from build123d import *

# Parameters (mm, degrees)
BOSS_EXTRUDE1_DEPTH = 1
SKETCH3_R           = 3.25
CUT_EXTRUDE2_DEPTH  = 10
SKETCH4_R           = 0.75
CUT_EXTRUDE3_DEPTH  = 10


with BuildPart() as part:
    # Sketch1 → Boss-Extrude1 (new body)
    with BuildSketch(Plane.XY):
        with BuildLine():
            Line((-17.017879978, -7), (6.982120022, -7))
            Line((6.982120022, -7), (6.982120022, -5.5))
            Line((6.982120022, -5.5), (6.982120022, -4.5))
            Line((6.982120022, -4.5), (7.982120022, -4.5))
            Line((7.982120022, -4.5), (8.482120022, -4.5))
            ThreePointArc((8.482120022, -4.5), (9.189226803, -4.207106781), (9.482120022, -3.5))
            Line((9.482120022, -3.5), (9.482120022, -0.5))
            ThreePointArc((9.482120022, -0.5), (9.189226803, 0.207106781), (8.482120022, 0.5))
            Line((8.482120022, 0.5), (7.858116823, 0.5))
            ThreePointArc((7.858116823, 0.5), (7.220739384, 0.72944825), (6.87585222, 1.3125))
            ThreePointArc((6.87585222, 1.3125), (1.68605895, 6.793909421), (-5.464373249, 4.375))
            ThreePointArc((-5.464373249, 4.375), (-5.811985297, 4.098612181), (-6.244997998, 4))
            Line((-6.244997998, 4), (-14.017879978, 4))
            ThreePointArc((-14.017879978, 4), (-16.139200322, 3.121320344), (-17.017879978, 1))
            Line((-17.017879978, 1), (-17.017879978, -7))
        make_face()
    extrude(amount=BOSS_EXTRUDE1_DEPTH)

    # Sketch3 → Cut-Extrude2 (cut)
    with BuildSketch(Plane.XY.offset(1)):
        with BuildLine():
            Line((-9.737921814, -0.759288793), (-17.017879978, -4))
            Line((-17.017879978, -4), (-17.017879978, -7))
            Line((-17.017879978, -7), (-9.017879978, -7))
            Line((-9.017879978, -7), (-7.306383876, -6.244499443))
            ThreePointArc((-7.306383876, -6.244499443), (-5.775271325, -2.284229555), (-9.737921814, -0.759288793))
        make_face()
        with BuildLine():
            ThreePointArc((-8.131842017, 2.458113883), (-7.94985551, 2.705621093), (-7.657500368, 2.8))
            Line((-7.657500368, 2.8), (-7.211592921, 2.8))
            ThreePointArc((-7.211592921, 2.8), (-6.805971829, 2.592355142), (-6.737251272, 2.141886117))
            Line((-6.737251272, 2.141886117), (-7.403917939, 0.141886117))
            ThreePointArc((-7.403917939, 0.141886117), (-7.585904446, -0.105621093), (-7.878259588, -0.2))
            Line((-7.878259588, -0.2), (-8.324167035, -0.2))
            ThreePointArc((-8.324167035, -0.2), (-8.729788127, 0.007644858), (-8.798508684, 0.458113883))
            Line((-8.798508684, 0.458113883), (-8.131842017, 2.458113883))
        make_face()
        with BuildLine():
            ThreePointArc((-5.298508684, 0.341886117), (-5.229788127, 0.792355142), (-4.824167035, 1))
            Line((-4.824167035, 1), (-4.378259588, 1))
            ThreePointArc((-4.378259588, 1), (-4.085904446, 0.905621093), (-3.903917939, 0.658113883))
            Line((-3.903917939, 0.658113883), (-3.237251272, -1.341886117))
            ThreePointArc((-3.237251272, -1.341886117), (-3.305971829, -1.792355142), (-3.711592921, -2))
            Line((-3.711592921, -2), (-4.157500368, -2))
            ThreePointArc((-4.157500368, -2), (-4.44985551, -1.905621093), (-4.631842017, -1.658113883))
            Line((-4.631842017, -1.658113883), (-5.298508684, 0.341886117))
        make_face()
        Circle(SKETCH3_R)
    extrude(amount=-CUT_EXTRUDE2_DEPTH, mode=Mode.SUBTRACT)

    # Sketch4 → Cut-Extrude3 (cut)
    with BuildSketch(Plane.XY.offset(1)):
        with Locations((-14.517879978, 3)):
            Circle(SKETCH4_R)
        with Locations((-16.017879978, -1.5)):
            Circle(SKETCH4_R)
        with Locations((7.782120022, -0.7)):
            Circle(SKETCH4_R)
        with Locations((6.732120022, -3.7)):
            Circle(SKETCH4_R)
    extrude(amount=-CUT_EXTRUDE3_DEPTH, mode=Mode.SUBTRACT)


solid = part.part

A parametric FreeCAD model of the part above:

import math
import FreeCAD as App
import Part
import Sketcher

V = App.Vector
Q = App.Units.Quantity

doc = App.newDocument("Part")
params = doc.addObject("Spreadsheet::Sheet", "Params")
for row, (alias, value) in enumerate([
    ("sketch1_radius", "1 mm"),
    ("sketch1_radius2", "7 mm"),
    ("sketch1_radius3", "3 mm"),
    ("sketch1_width", "24 mm"),
    ("sketch1_height", "3 mm"),
    ("pad1_length", "1 mm"),
    ("sketch2_radius", "3 mm"),
    ("sketch2_diameter", "6.5 mm"),
    ("sketch2_radius2", "0.5 mm"),
    ("sketch2_width", "8 mm"),
    ("sketch2_height", "3 mm"),
    ("pocket1_length", "10 mm"),
    ("sketch3_diameter", "1.5 mm"),
    ("pocket2_length", "10 mm"),
], start=1):
    params.set(f"A{row}", alias)
    params.set(f"B{row}", "=" + value)
    params.setAlias(f"B{row}", alias)

body = doc.addObject("PartDesign::Body", "Body")

sketch1 = body.newObject("Sketcher::SketchObject", "Sketch")
sketch1.AttachmentSupport = (doc.getObject("XY_Plane"), [""])
sketch1.MapMode = "FlatFace"
sketch1.addGeometry([
    Part.LineSegment(V(-17, -7, 0), V(7, -7, 0)),
    Part.LineSegment(V(7, -7, 0), V(7, -4.5, 0)),
    Part.LineSegment(V(7, -4.5, 0), V(8.5, -4.5, 0)),
    Part.ArcOfCircle(Part.Circle(V(8.5, -3.5, 0), V(0, 0, 1), 1), math.radians(-90), math.radians(0)),
    Part.LineSegment(V(9.5, -3.5, 0), V(9.5, -0.5, 0)),
    Part.ArcOfCircle(Part.Circle(V(8.5, -0.5, 0), V(0, 0, 1), 1), math.radians(0), math.radians(90)),
    Part.LineSegment(V(8.5, 0.5, 0), V(7.9, 0.5, 0)),
    Part.ArcOfCircle(Part.Circle(V(7.9, 1.5, 0), V(0, 0, 1), 1), math.radians(-169), math.radians(-90)),
    Part.ArcOfCircle(Part.Circle(V(0, 0, 0), V(0, 0, 1), 7), math.radians(11), math.radians(141)),
    Part.ArcOfCircle(Part.Circle(V(-6.2, 5, 0), V(0, 0, 1), 1), math.radians(-90), math.radians(-39)),
    Part.LineSegment(V(-6.2, 4, 0), V(-14, 4, 0)),
    Part.ArcOfCircle(Part.Circle(V(-14, 1, 0), V(0, 0, 1), 3), math.radians(90), math.radians(180)),
    Part.LineSegment(V(-17, 1, 0), V(-17, -7, 0)),
], False)
sketch1.addConstraint([
    Sketcher.Constraint("Coincident", 0, 2, 1, 1),
    Sketcher.Constraint("Coincident", 1, 2, 2, 1),
    Sketcher.Constraint("Tangent", 2, 2, 3, 1),
    Sketcher.Constraint("Tangent", 3, 2, 4, 1),
    Sketcher.Constraint("Tangent", 4, 2, 5, 1),
    Sketcher.Constraint("Tangent", 5, 2, 6, 1),
    Sketcher.Constraint("Tangent", 6, 2, 7, 2),
    Sketcher.Constraint("Tangent", 7, 1, 8, 1),
    Sketcher.Constraint("Tangent", 8, 2, 9, 2),
    Sketcher.Constraint("Tangent", 9, 1, 10, 1),
    Sketcher.Constraint("Tangent", 10, 2, 11, 1),
    Sketcher.Constraint("Tangent", 11, 2, 12, 1),
    Sketcher.Constraint("Coincident", 12, 2, 0, 1),
    Sketcher.Constraint("Horizontal", 0),
    Sketcher.Constraint("Vertical", 1),
    Sketcher.Constraint("Horizontal", 2),
    Sketcher.Constraint("Vertical", 4),
    Sketcher.Constraint("Horizontal", 6),
    Sketcher.Constraint("Horizontal", 10),
    Sketcher.Constraint("Vertical", 12),
    Sketcher.Constraint("Coincident", 8, 3, -1, 1),
    Sketcher.Constraint("Equal", 3, 5),
    Sketcher.Constraint("Equal", 5, 7),
    Sketcher.Constraint("Equal", 7, 9),
    Sketcher.Constraint("Radius", 3, Q("1 mm")),
    Sketcher.Constraint("Radius", 8, Q("7 mm")),
    Sketcher.Constraint("Radius", 11, Q("3 mm")),
    Sketcher.Constraint("DistanceX", 0, 1, 0, 2, Q("24 mm")),
    Sketcher.Constraint("DistanceY", 4, 1, 4, 2, Q("3 mm")),
    Sketcher.Constraint("DistanceY", 12, 2, 12, 1, Q("8 mm")),
    Sketcher.Constraint("DistanceX", 2, 1, 2, 2, Q("1.5 mm")),
    Sketcher.Constraint("DistanceY", 1, 1, 1, 2, Q("2.5 mm")),
    Sketcher.Constraint("DistanceY", -1, 1, 9, 3, Q("5 mm")),
    Sketcher.Constraint("DistanceX", 10, 2, 10, 1, Q("7.772882 mm")),
])
sketch1.setExpression("Constraints[24]", "Params.sketch1_radius")
sketch1.setExpression("Constraints[25]", "Params.sketch1_radius2")
sketch1.setExpression("Constraints[26]", "Params.sketch1_radius3")
sketch1.setExpression("Constraints[27]", "Params.sketch1_width")
sketch1.setExpression("Constraints[28]", "Params.sketch1_height")
pad1 = body.newObject("PartDesign::Pad", "Pad")
pad1.Profile = sketch1
pad1.setExpression("Length", "Params.pad1_length")

sketch2 = body.newObject("Sketcher::SketchObject", "Sketch001")
sketch2.AttachmentSupport = (doc.getObject("XY_Plane"), [""])
sketch2.MapMode = "FlatFace"
sketch2.AttachmentOffset = App.Placement(V(0, 0, 1), App.Rotation())
sketch2.addGeometry([
    Part.LineSegment(V(-9.74, -0.76, 0), V(-17.02, -4, 0)),
    Part.LineSegment(V(-17.02, -4, 0), V(-17.02, -7, 0)),
    Part.LineSegment(V(-17.02, -7, 0), V(-9.02, -7, 0)),
    Part.LineSegment(V(-9.02, -7, 0), V(-7.31, -6.24, 0)),
    Part.ArcOfCircle(Part.Circle(V(-8.52, -3.5, 0), V(0, 0, 1), 3), math.radians(-66), math.radians(114)),
    Part.ArcOfCircle(Part.Circle(V(-7.66, 2.3, 0), V(0, 0, 1), 0.5), math.radians(90), math.radians(162)),
    Part.LineSegment(V(-8.13, 2.46, 0), V(-8.8, 0.46, 0)),
    Part.ArcOfCircle(Part.Circle(V(-8.32, 0.3, 0), V(0, 0, 1), 0.5), math.radians(162), math.radians(270)),
    Part.LineSegment(V(-8.32, -0.2, 0), V(-7.88, -0.2, 0)),
    Part.ArcOfCircle(Part.Circle(V(-7.88, 0.3, 0), V(0, 0, 1), 0.5), math.radians(-90), math.radians(-18)),
    Part.LineSegment(V(-7.4, 0.14, 0), V(-6.74, 2.14, 0)),
    Part.ArcOfCircle(Part.Circle(V(-7.21, 2.3, 0), V(0, 0, 1), 0.5), math.radians(-18), math.radians(90)),
    Part.LineSegment(V(-7.21, 2.8, 0), V(-7.66, 2.8, 0)),
    Part.ArcOfCircle(Part.Circle(V(-4.82, 0.5, 0), V(0, 0, 1), 0.5), math.radians(90), math.radians(198)),
    Part.LineSegment(V(-5.3, 0.34, 0), V(-4.63, -1.66, 0)),
    Part.ArcOfCircle(Part.Circle(V(-4.16, -1.5, 0), V(0, 0, 1), 0.5), math.radians(-162), math.radians(-90)),
    Part.LineSegment(V(-4.16, -2, 0), V(-3.71, -2, 0)),
    Part.ArcOfCircle(Part.Circle(V(-3.71, -1.5, 0), V(0, 0, 1), 0.5), math.radians(-90), math.radians(18)),
    Part.LineSegment(V(-3.24, -1.34, 0), V(-3.9, 0.66, 0)),
    Part.ArcOfCircle(Part.Circle(V(-4.38, 0.5, 0), V(0, 0, 1), 0.5), math.radians(18), math.radians(90)),
    Part.LineSegment(V(-4.38, 1, 0), V(-4.82, 1, 0)),
    Part.Circle(V(0, 0, 0), V(0, 0, 1), 3.25),
], False)
sketch2.addConstraint([
    Sketcher.Constraint("Coincident", 0, 2, 1, 1),
    Sketcher.Constraint("Coincident", 1, 2, 2, 1),
    Sketcher.Constraint("Coincident", 2, 2, 3, 1),
    Sketcher.Constraint("Tangent", 3, 2, 4, 1),
    Sketcher.Constraint("Tangent", 4, 2, 0, 1),
    Sketcher.Constraint("Tangent", 5, 2, 6, 1),
    Sketcher.Constraint("Tangent", 6, 2, 7, 1),
    Sketcher.Constraint("Tangent", 7, 2, 8, 1),
    Sketcher.Constraint("Tangent", 8, 2, 9, 1),
    Sketcher.Constraint("Tangent", 9, 2, 10, 1),
    Sketcher.Constraint("Tangent", 10, 2, 11, 1),
    Sketcher.Constraint("Tangent", 11, 2, 12, 1),
    Sketcher.Constraint("Tangent", 12, 2, 5, 1),
    Sketcher.Constraint("Tangent", 13, 2, 14, 1),
    Sketcher.Constraint("Tangent", 14, 2, 15, 1),
    Sketcher.Constraint("Tangent", 15, 2, 16, 1),
    Sketcher.Constraint("Tangent", 16, 2, 17, 1),
    Sketcher.Constraint("Tangent", 17, 2, 18, 1),
    Sketcher.Constraint("Tangent", 18, 2, 19, 1),
    Sketcher.Constraint("Tangent", 19, 2, 20, 1),
    Sketcher.Constraint("Tangent", 20, 2, 13, 1),
    Sketcher.Constraint("Vertical", 1),
    Sketcher.Constraint("Horizontal", 2),
    Sketcher.Constraint("Horizontal", 8),
    Sketcher.Constraint("Horizontal", 12),
    Sketcher.Constraint("Horizontal", 16),
    Sketcher.Constraint("Horizontal", 20),
    Sketcher.Constraint("Coincident", 21, 3, -1, 1),
    Sketcher.Constraint("Equal", 5, 7),
    Sketcher.Constraint("Equal", 7, 9),
    Sketcher.Constraint("Equal", 9, 11),
    Sketcher.Constraint("Equal", 11, 13),
    Sketcher.Constraint("Equal", 13, 15),
    Sketcher.Constraint("Equal", 15, 17),
    Sketcher.Constraint("Equal", 17, 19),
    Sketcher.Constraint("Parallel", 6, 10),
    Sketcher.Constraint("Parallel", 14, 18),
    Sketcher.Constraint("Equal", 12, 16),
    Sketcher.Constraint("Equal", 10, 14),
    Sketcher.Constraint("Radius", 4, Q("3 mm")),
    Sketcher.Constraint("Diameter", 21, Q("6.5 mm")),
    Sketcher.Constraint("Radius", 5, Q("0.5 mm")),
    Sketcher.Constraint("DistanceX", 2, 1, 2, 2, Q("8 mm")),
    Sketcher.Constraint("DistanceY", 1, 2, 1, 1, Q("3 mm")),
    Sketcher.Constraint("DistanceY", 0, 2, -1, 1, Q("4 mm")),
    Sketcher.Constraint("DistanceY", 15, 2, -1, 1, Q("2 mm")),
    Sketcher.Constraint("DistanceY", -1, 1, 19, 2, Q("1 mm")),
    Sketcher.Constraint("DistanceY", 7, 3, 5, 3, Q("2 mm")),
    Sketcher.Constraint("DistanceY", 4, 3, 13, 3, Q("4 mm")),
    Sketcher.Constraint("DistanceY", -1, 1, 5, 3, Q("2.3 mm")),
    Sketcher.Constraint("DistanceX", 7, 3, 13, 3, Q("3.5 mm")),
    Sketcher.Constraint("DistanceX", 0, 2, 4, 3, Q("8.5 mm")),
    Sketcher.Constraint("DistanceX", 5, 3, -1, 1, Q("7.6575 mm")),
    Sketcher.Constraint("DistanceX", 8, 1, 8, 2, Q("0.445907 mm")),
    Sketcher.Constraint("DistanceX", 4, 3, -1, 1, Q("8.51788 mm")),
    Sketcher.Constraint("DistanceX", 9, 3, -1, 1, Q("7.87826 mm")),
])
sketch2.setExpression("Constraints[39]", "Params.sketch2_radius")
sketch2.setExpression("Constraints[40]", "Params.sketch2_diameter")
sketch2.setExpression("Constraints[41]", "Params.sketch2_radius2")
sketch2.setExpression("Constraints[42]", "Params.sketch2_width")
sketch2.setExpression("Constraints[43]", "Params.sketch2_height")
pocket1 = body.newObject("PartDesign::Pocket", "Pocket")
pocket1.Profile = sketch2
pocket1.setExpression("Length", "Params.pocket1_length")

sketch3 = body.newObject("Sketcher::SketchObject", "Sketch002")
sketch3.AttachmentSupport = (doc.getObject("XY_Plane"), [""])
sketch3.MapMode = "FlatFace"
sketch3.AttachmentOffset = App.Placement(V(0, 0, 1), App.Rotation())
sketch3.addGeometry([
    Part.Circle(V(-14.5, 3, 0), V(0, 0, 1), 0.8),
    Part.Circle(V(-16, -1.5, 0), V(0, 0, 1), 0.8),
    Part.Circle(V(7.8, -0.7, 0), V(0, 0, 1), 0.8),
    Part.Circle(V(6.7, -3.7, 0), V(0, 0, 1), 0.8),
], False)
sketch3.addConstraint([
    Sketcher.Constraint("Equal", 0, 1),
    Sketcher.Constraint("Equal", 1, 2),
    Sketcher.Constraint("Equal", 2, 3),
    Sketcher.Constraint("Diameter", 0, Q("1.5 mm")),
    Sketcher.Constraint("DistanceY", -1, 1, 0, 3, Q("3 mm")),
    Sketcher.Constraint("DistanceY", 3, 3, 2, 3, Q("3 mm")),
    Sketcher.Constraint("DistanceY", 1, 3, -1, 1, Q("1.5 mm")),
    Sketcher.Constraint("DistanceY", 2, 3, -1, 1, Q("0.7 mm")),
    Sketcher.Constraint("DistanceX", 1, 3, 0, 3, Q("1.5 mm")),
    Sketcher.Constraint("DistanceX", 0, 3, 2, 3, Q("22.3 mm")),
    Sketcher.Constraint("DistanceX", 3, 3, 2, 3, Q("1.05 mm")),
    Sketcher.Constraint("DistanceX", 0, 3, -1, 1, Q("14.51788 mm")),
])
sketch3.setExpression("Constraints[3]", "Params.sketch3_diameter")
pocket2 = body.newObject("PartDesign::Pocket", "Pocket001")
pocket2.Profile = sketch3
pocket2.setExpression("Length", "Params.pocket2_length")

doc.recompute()
